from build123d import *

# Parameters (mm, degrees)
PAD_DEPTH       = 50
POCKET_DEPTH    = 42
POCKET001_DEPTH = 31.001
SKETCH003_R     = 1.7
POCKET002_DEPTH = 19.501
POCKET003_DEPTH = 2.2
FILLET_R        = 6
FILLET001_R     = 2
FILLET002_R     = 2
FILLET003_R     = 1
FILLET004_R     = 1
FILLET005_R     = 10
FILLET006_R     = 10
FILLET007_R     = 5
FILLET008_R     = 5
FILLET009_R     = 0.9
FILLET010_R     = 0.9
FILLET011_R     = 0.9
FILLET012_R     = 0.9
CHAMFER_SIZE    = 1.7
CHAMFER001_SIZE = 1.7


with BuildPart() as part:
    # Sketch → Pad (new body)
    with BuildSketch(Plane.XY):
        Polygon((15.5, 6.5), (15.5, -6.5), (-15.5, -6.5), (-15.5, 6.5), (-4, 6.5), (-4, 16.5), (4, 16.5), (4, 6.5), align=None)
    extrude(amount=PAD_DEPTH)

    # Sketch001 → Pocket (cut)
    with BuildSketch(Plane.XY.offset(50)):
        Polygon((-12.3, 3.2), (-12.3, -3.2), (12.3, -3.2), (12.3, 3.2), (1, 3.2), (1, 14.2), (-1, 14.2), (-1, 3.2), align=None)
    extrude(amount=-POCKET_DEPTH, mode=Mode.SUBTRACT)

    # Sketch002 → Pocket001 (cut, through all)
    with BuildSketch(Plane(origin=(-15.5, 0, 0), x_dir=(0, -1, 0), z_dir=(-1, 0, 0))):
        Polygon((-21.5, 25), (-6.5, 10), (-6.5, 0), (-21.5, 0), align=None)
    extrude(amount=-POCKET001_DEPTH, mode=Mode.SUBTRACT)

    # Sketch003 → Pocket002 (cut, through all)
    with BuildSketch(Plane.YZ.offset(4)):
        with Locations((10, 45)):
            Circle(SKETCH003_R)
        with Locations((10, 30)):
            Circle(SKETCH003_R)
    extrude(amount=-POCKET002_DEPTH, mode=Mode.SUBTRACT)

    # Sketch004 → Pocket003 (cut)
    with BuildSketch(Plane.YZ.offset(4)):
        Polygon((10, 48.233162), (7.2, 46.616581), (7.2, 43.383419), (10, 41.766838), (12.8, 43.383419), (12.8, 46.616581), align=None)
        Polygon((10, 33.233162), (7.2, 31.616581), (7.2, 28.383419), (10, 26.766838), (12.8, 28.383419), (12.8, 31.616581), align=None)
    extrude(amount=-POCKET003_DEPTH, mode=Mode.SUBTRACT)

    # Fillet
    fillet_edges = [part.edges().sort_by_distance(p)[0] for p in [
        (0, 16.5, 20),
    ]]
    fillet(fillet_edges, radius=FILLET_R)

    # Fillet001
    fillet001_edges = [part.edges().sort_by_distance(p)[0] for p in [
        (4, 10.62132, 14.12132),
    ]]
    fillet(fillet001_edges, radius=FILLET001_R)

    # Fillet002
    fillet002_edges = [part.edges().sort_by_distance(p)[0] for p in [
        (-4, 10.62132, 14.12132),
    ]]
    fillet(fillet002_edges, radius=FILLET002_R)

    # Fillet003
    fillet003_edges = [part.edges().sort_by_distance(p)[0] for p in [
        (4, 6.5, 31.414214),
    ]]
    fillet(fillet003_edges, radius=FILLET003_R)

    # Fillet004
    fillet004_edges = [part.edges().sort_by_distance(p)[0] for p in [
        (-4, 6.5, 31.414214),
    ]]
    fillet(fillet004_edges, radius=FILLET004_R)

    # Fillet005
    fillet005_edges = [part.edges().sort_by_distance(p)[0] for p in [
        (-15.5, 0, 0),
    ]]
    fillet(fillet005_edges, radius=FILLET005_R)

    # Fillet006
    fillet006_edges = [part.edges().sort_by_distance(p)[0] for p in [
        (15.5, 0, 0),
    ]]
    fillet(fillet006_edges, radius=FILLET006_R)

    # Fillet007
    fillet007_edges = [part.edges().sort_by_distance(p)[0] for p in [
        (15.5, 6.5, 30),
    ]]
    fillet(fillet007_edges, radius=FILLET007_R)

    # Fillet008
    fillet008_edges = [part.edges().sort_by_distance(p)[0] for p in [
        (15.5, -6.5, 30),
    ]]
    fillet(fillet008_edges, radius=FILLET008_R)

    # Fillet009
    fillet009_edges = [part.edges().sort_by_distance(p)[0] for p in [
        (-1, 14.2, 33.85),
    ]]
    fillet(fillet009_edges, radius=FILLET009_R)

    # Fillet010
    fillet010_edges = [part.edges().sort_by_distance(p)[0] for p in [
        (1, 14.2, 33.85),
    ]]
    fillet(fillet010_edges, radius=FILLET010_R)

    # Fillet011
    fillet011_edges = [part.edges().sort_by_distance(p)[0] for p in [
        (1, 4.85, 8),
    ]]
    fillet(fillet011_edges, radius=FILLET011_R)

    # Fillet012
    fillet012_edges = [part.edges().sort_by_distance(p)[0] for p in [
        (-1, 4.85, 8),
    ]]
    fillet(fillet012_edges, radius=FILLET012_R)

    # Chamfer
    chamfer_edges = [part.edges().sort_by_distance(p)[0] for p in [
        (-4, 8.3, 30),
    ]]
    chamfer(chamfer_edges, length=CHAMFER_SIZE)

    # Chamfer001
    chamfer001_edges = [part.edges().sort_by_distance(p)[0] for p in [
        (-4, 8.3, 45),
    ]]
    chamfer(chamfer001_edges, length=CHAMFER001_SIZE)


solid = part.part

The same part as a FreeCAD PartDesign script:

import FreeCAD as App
import Part
import Sketcher

V = App.Vector
Q = App.Units.Quantity


def edges_at(feature, points):
    """Names of the edges that pass closest to the given points."""
    edges = feature.Shape.Edges
    near = lambda p: min(range(len(edges)), key=lambda i: edges[i].distToShape(Part.Vertex(*p))[0])
    return sorted({f"Edge{near(p) + 1}" for p in points})

doc = App.newDocument("Part")
params = doc.addObject("Spreadsheet::Sheet", "Params")
for row, (alias, value) in enumerate([
    ("sketch1_width", "8 mm"),
    ("sketch1_width2", "31 mm"),
    ("sketch1_height", "13 mm"),
    ("sketch1_height2", "10 mm"),
    ("pad1_length", "50 mm"),
    ("sketch2_width", "2 mm"),
    ("sketch2_height", "11 mm"),
    ("sketch2_width2", "24.6 mm"),
    ("sketch2_height2", "6.4 mm"),
    ("pocket1_length", "42 mm"),
    ("sketch3_width", "15 mm"),
    ("sketch3_height", "25 mm"),
    ("sketch3_height2", "10 mm"),
    ("sketch4_diameter", "3.4 mm"),
    ("pocket4_length", "2.2 mm"),
    ("fillet_radius", "6 mm"),
    ("fillet2_radius", "2 mm"),
    ("fillet3_radius", "2 mm"),
    ("fillet4_radius", "1 mm"),
    ("fillet5_radius", "1 mm"),
    ("fillet6_radius", "10 mm"),
    ("fillet7_radius", "10 mm"),
    ("fillet8_radius", "5 mm"),
    ("fillet9_radius", "5 mm"),
    ("fillet10_radius", "0.9 mm"),
    ("fillet11_radius", "0.9 mm"),
    ("fillet12_radius", "0.9 mm"),
    ("fillet13_radius", "0.9 mm"),
    ("chamfer_size", "1.7 mm"),
    ("chamfer2_size", "1.7 mm"),
], start=1):
    params.set(f"A{row}", alias)
    params.set(f"B{row}", "=" + value)
    params.setAlias(f"B{row}", alias)

body = doc.addObject("PartDesign::Body", "Body")

# Sketch on XY plane
sketch1 = body.newObject("Sketcher::SketchObject", "Sketch")
sketch1.AttachmentSupport = (doc.getObject("XY_Plane"), [""])
sketch1.MapMode = "FlatFace"
sketch1.addGeometry([
    Part.LineSegment(V(15.5, -6.5, 0), V(15.5, 6.5, 0)),  # 0
    Part.LineSegment(V(15.5, 6.5, 0), V(4, 6.5, 0)),  # 1
    Part.LineSegment(V(4, 6.5, 0), V(4, 16.5, 0)),  # 2
    Part.LineSegment(V(4, 16.5, 0), V(-4, 16.5, 0)),  # 3
    Part.LineSegment(V(-4, 16.5, 0), V(-4, 6.5, 0)),  # 4
    Part.LineSegment(V(-4, 6.5, 0), V(-15.5, 6.5, 0)),  # 5
    Part.LineSegment(V(-15.5, 6.5, 0), V(-15.5, -6.5, 0)),  # 6
    Part.LineSegment(V(-15.5, -6.5, 0), V(15.5, -6.5, 0)),  # 7
], False)
sketch1.addConstraint([
    Sketcher.Constraint("Coincident", 0, 2, 1, 1),
    Sketcher.Constraint("Coincident", 1, 2, 2, 1),
    Sketcher.Constraint("Coincident", 2, 2, 3, 1),
    Sketcher.Constraint("Coincident", 3, 2, 4, 1),
    Sketcher.Constraint("Coincident", 4, 2, 5, 1),
    Sketcher.Constraint("Coincident", 5, 2, 6, 1),
    Sketcher.Constraint("Coincident", 6, 2, 7, 1),
    Sketcher.Constraint("Coincident", 7, 2, 0, 1),
    Sketcher.Constraint("Vertical", 0),
    Sketcher.Constraint("Horizontal", 1),
    Sketcher.Constraint("Vertical", 2),
    Sketcher.Constraint("Horizontal", 3),
    Sketcher.Constraint("Vertical", 4),
    Sketcher.Constraint("Horizontal", 5),
    Sketcher.Constraint("Vertical", 6),
    Sketcher.Constraint("Horizontal", 7),
    Sketcher.Constraint("Symmetric", 0, 2, 6, 2, -1, 1),
    Sketcher.Constraint("Symmetric", 1, 2, 4, 2, -2),
    Sketcher.Constraint("DistanceX", 3, 2, 3, 1, 8.0),
    Sketcher.Constraint("DistanceX", 7, 1, 7, 2, 31.0),
    Sketcher.Constraint("DistanceY", 0, 1, 0, 2, 13.0),
    Sketcher.Constraint("DistanceY", 2, 1, 2, 2, 10.0),
])
sketch1.setExpression("Constraints[18]", "Params.sketch1_width")
sketch1.setExpression("Constraints[19]", "Params.sketch1_width2")
sketch1.setExpression("Constraints[20]", "Params.sketch1_height")
sketch1.setExpression("Constraints[21]", "Params.sketch1_height2")
pad1 = body.newObject("PartDesign::Pad", "Pad")
pad1.Profile = sketch1
pad1.setExpression("Length", "Params.pad1_length")

# Sketch on XY plane
sketch2 = body.newObject("Sketcher::SketchObject", "Sketch001")
sketch2.AttachmentSupport = (doc.getObject("XY_Plane"), [""])
sketch2.MapMode = "FlatFace"
sketch2.AttachmentOffset = App.Placement(V(0, 0, 50), App.Rotation())
sketch2.addGeometry([
    Part.LineSegment(V(-12.3, 3.2, 0), V(-12.3, -3.2, 0)),  # 0
    Part.LineSegment(V(-12.3, -3.2, 0), V(12.3, -3.2, 0)),  # 1
    Part.LineSegment(V(12.3, -3.2, 0), V(12.3, 3.2, 0)),  # 2
    Part.LineSegment(V(12.3, 3.2, 0), V(1, 3.2, 0)),  # 3
    Part.LineSegment(V(1, 3.2, 0), V(1, 14.2, 0)),  # 4
    Part.LineSegment(V(1, 14.2, 0), V(-1, 14.2, 0)),  # 5
    Part.LineSegment(V(-1, 14.2, 0), V(-1, 3.2, 0)),  # 6
    Part.LineSegment(V(-1, 3.2, 0), V(-12.3, 3.2, 0)),  # 7
], False)
sketch2.addConstraint([
    Sketcher.Constraint("Coincident", 0, 2, 1, 1),
    Sketcher.Constraint("Coincident", 1, 2, 2, 1),
    Sketcher.Constraint("Coincident", 2, 2, 3, 1),
    Sketcher.Constraint("Coincident", 3, 2, 4, 1),
    Sketcher.Constraint("Coincident", 4, 2, 5, 1),
    Sketcher.Constraint("Coincident", 5, 2, 6, 1),
    Sketcher.Constraint("Coincident", 6, 2, 7, 1),
    Sketcher.Constraint("Coincident", 7, 2, 0, 1),
    Sketcher.Constraint("Vertical", 0),
    Sketcher.Constraint("Horizontal", 1),
    Sketcher.Constraint("Vertical", 2),
    Sketcher.Constraint("Horizontal", 3),
    Sketcher.Constraint("Vertical", 4),
    Sketcher.Constraint("Horizontal", 5),
    Sketcher.Constraint("Vertical", 6),
    Sketcher.Constraint("Horizontal", 7),
    Sketcher.Constraint("Symmetric", 0, 2, 2, 2, -1, 1),
    Sketcher.Constraint("Symmetric", 3, 2, 6, 2, -2),
    Sketcher.Constraint("DistanceX", 5, 2, 5, 1, 2.0),
    Sketcher.Constraint("DistanceY", 4, 1, 4, 2, 11.0),
    Sketcher.Constraint("DistanceX", 1, 1, 1, 2, 24.6),
    Sketcher.Constraint("DistanceY", 0, 2, 0, 1, 6.4),
])
sketch2.setExpression("Constraints[18]", "Params.sketch2_width")
sketch2.setExpression("Constraints[19]", "Params.sketch2_height")
sketch2.setExpression("Constraints[20]", "Params.sketch2_width2")
sketch2.setExpression("Constraints[21]", "Params.sketch2_height2")
pocket1 = body.newObject("PartDesign::Pocket", "Pocket")
pocket1.Profile = sketch2
pocket1.setExpression("Length", "Params.pocket1_length")

# Sketch on YZ plane
sketch3 = body.newObject("Sketcher::SketchObject", "Sketch002")
sketch3.AttachmentSupport = (doc.getObject("YZ_Plane"), [""])
sketch3.MapMode = "FlatFace"
sketch3.AttachmentOffset = App.Placement(V(0, 0, -15.5), App.Rotation())
sketch3.addGeometry([
    Part.LineSegment(V(6.5, 10, 0), V(21.5, 25, 0)),
    Part.LineSegment(V(21.5, 25, 0), V(21.5, 0, 0)),
    Part.LineSegment(V(21.5, 0, 0), V(6.5, 0, 0)),
    Part.LineSegment(V(6.5, 0, 0), V(6.5, 10, 0)),
], False)
sketch3.addConstraint([
    Sketcher.Constraint("Coincident", 0, 2, 1, 1),
    Sketcher.Constraint("Coincident", 1, 2, 2, 1),
    Sketcher.Constraint("Coincident", 2, 2, 3, 1),
    Sketcher.Constraint("Coincident", 3, 2, 0, 1),
    Sketcher.Constraint("Vertical", 1),
    Sketcher.Constraint("Horizontal", 2),
    Sketcher.Constraint("Vertical", 3),
    Sketcher.Constraint("PointOnObject", 1, 2, -1),
    Sketcher.Constraint("DistanceX", 2, 2, 2, 1, 15.0),
    Sketcher.Constraint("DistanceY", 1, 2, 1, 1, 25.0),
    Sketcher.Constraint("DistanceY", 3, 1, 3, 2, 10.0),
    Sketcher.Constraint("DistanceX", -1, 1, 0, 2, 21.5),
])
sketch3.setExpression("Constraints[8]", "Params.sketch3_width")
sketch3.setExpression("Constraints[9]", "Params.sketch3_height")
sketch3.setExpression("Constraints[10]", "Params.sketch3_height2")
pocket2 = body.newObject("PartDesign::Pocket", "Pocket001")
pocket2.Profile = sketch3
pocket2.Type = "ThroughAll"
pocket2.Reversed = True

# Sketch on YZ plane
sketch4 = body.newObject("Sketcher::SketchObject", "Sketch003")
sketch4.AttachmentSupport = (doc.getObject("YZ_Plane"), [""])
sketch4.MapMode = "FlatFace"
sketch4.AttachmentOffset = App.Placement(V(0, 0, 4), App.Rotation())
sketch4.addGeometry([
    Part.Circle(V(10, 45, 0), V(0, 0, 1), 1.7),
    Part.Circle(V(10, 30, 0), V(0, 0, 1), 1.7),
], False)
sketch4.addConstraint([
    Sketcher.Constraint("Equal", 0, 1),
    Sketcher.Constraint("Vertical", 0, 3, 1, 3),
    Sketcher.Constraint("Diameter", 0, 3.4),
    Sketcher.Constraint("DistanceX", -1, 1, 0, 3, 10.0),
    Sketcher.Constraint("DistanceY", -1, 1, 0, 3, 45.0),
    Sketcher.Constraint("DistanceY", -1, 1, 1, 3, 30.0),
])
sketch4.setExpression("Constraints[2]", "Params.sketch4_diameter")
pocket3 = body.newObject("PartDesign::Pocket", "Pocket002")
pocket3.Profile = sketch4
pocket3.Type = "ThroughAll"

# Sketch on YZ plane
sketch5 = body.newObject("Sketcher::SketchObject", "Sketch004")
sketch5.AttachmentSupport = (doc.getObject("YZ_Plane"), [""])
sketch5.MapMode = "FlatFace"
sketch5.AttachmentOffset = App.Placement(V(0, 0, 4), App.Rotation())
sketch5.addGeometry([
    Part.LineSegment(V(10, 48.233162, 0), V(7.2, 46.616581, 0)),  # 0
    Part.LineSegment(V(7.2, 46.616581, 0), V(7.2, 43.383419, 0)),  # 1
    Part.LineSegment(V(7.2, 43.383419, 0), V(10, 41.766838, 0)),  # 2
    Part.LineSegment(V(10, 41.766838, 0), V(12.8, 43.383419, 0)),  # 3
    Part.LineSegment(V(12.8, 43.383419, 0), V(12.8, 46.616581, 0)),  # 4
    Part.LineSegment(V(12.8, 46.616581, 0), V(10, 48.233162, 0)),  # 5
    Part.LineSegment(V(10, 33.233162, 0), V(7.2, 31.616581, 0)),  # 6
    Part.LineSegment(V(7.2, 31.616581, 0), V(7.2, 28.383419, 0)),  # 7
    Part.LineSegment(V(7.2, 28.383419, 0), V(10, 26.766838, 0)),  # 8
    Part.LineSegment(V(10, 26.766838, 0), V(12.8, 28.383419, 0)),  # 9
    Part.LineSegment(V(12.8, 28.383419, 0), V(12.8, 31.616581, 0)),  # 10
    Part.LineSegment(V(12.8, 31.616581, 0), V(10, 33.233162, 0)),  # 11
], False)
sketch5.addConstraint([
    Sketcher.Constraint("Coincident", 0, 2, 1, 1),
    Sketcher.Constraint("Coincident", 1, 2, 2, 1),
    Sketcher.Constraint("Coincident", 2, 2, 3, 1),
    Sketcher.Constraint("Coincident", 3, 2, 4, 1),
    Sketcher.Constraint("Coincident", 4, 2, 5, 1),
    Sketcher.Constraint("Coincident", 5, 2, 0, 1),
    Sketcher.Constraint("Coincident", 6, 2, 7, 1),
    Sketcher.Constraint("Coincident", 7, 2, 8, 1),
    Sketcher.Constraint("Coincident", 8, 2, 9, 1),
    Sketcher.Constraint("Coincident", 9, 2, 10, 1),
    Sketcher.Constraint("Coincident", 10, 2, 11, 1),
    Sketcher.Constraint("Coincident", 11, 2, 6, 1),
    Sketcher.Constraint("Vertical", 1),
    Sketcher.Constraint("Vertical", 4),
    Sketcher.Constraint("Vertical", 7),
    Sketcher.Constraint("Vertical", 10),
    Sketcher.Constraint("Parallel", 0, 3),
    Sketcher.Constraint("Parallel", 2, 5),
    Sketcher.Constraint("Parallel", 3, 6),
    Sketcher.Constraint("Parallel", 5, 8),
    Sketcher.Constraint("Parallel", 6, 9),
    Sketcher.Constraint("Parallel", 8, 11),
    Sketcher.Constraint("Horizontal", 1, 2, 3, 2),
    Sketcher.Constraint("Horizontal", 0, 2, 4, 2),
    Sketcher.Constraint("Horizontal", 7, 2, 9, 2),
    Sketcher.Constraint("Horizontal", 6, 2, 10, 2),
    Sketcher.Constraint("Vertical", 2, 2, 5, 2),
    Sketcher.Constraint("Vertical", 1, 2, 6, 2),
    Sketcher.Constraint("Vertical", 5, 2, 8, 2),
    Sketcher.Constraint("Equal", 4, 7),
    Sketcher.Constraint("Angle", 0, Q("-149.999996 deg")),
    Sketcher.Constraint("DistanceX", -1, 1, 2, 2, 10.0),
    Sketcher.Constraint("DistanceY", 6, 2, 0, 2, 15.0),
    Sketcher.Constraint("DistanceX", -1, 1, 0, 2, 7.2),
    Sketcher.Constraint("DistanceY", 1, 2, 1, 1, 3.233162),
    Sketcher.Constraint("DistanceY", -1, 1, 0, 2, 46.616581),
])
pocket4 = body.newObject("PartDesign::Pocket", "Pocket003")
pocket4.Profile = sketch5
pocket4.setExpression("Length", "Params.pocket4_length")
doc.recompute()

fillet = body.newObject("PartDesign::Fillet", "Fillet")
fillet.Base = (pocket4, edges_at(pocket4, [(0, 16.5, 20)]))
fillet.setExpression("Radius", "Params.fillet_radius")
doc.recompute()

fillet2 = body.newObject("PartDesign::Fillet", "Fillet001")
fillet2.Base = (fillet, edges_at(fillet, [(4, 10.621, 14.121)]))
fillet2.setExpression("Radius", "Params.fillet2_radius")
doc.recompute()

fillet3 = body.newObject("PartDesign::Fillet", "Fillet002")
fillet3.Base = (fillet2, edges_at(fillet2, [(-4, 10.621, 14.121)]))
fillet3.setExpression("Radius", "Params.fillet3_radius")
doc.recompute()

fillet4 = body.newObject("PartDesign::Fillet", "Fillet003")
fillet4.Base = (fillet3, edges_at(fillet3, [(4, 6.5, 31.414)]))
fillet4.setExpression("Radius", "Params.fillet4_radius")
doc.recompute()

fillet5 = body.newObject("PartDesign::Fillet", "Fillet004")
fillet5.Base = (fillet4, edges_at(fillet4, [(-4, 6.5, 31.414)]))
fillet5.setExpression("Radius", "Params.fillet5_radius")
doc.recompute()

fillet6 = body.newObject("PartDesign::Fillet", "Fillet005")
fillet6.Base = (fillet5, edges_at(fillet5, [(-15.5, 0, 0)]))
fillet6.setExpression("Radius", "Params.fillet6_radius")
doc.recompute()

fillet7 = body.newObject("PartDesign::Fillet", "Fillet006")
fillet7.Base = (fillet6, edges_at(fillet6, [(15.5, 0, 0)]))
fillet7.setExpression("Radius", "Params.fillet7_radius")
doc.recompute()

fillet8 = body.newObject("PartDesign::Fillet", "Fillet007")
fillet8.Base = (fillet7, edges_at(fillet7, [(15.5, 6.5, 30)]))
fillet8.setExpression("Radius", "Params.fillet8_radius")
doc.recompute()

fillet9 = body.newObject("PartDesign::Fillet", "Fillet008")
fillet9.Base = (fillet8, edges_at(fillet8, [(15.5, -6.5, 30)]))
fillet9.setExpression("Radius", "Params.fillet9_radius")
doc.recompute()

fillet10 = body.newObject("PartDesign::Fillet", "Fillet009")
fillet10.Base = (fillet9, edges_at(fillet9, [(-1, 14.2, 33.85)]))
fillet10.setExpression("Radius", "Params.fillet10_radius")
doc.recompute()

fillet11 = body.newObject("PartDesign::Fillet", "Fillet010")
fillet11.Base = (fillet10, edges_at(fillet10, [(1, 14.2, 33.85)]))
fillet11.setExpression("Radius", "Params.fillet11_radius")
doc.recompute()

fillet12 = body.newObject("PartDesign::Fillet", "Fillet011")
fillet12.Base = (fillet11, edges_at(fillet11, [(1, 4.85, 8)]))
fillet12.setExpression("Radius", "Params.fillet12_radius")
doc.recompute()

fillet13 = body.newObject("PartDesign::Fillet", "Fillet012")
fillet13.Base = (fillet12, edges_at(fillet12, [(-1, 4.85, 8)]))
fillet13.setExpression("Radius", "Params.fillet13_radius")
doc.recompute()

chamfer = body.newObject("PartDesign::Chamfer", "Chamfer")
chamfer.Base = (fillet13, edges_at(fillet13, [(-4, 8.3, 30)]))
chamfer.setExpression("Size", "Params.chamfer_size")
doc.recompute()

chamfer2 = body.newObject("PartDesign::Chamfer", "Chamfer001")
chamfer2.Base = (chamfer, edges_at(chamfer, [(-4, 8.3, 45)]))
chamfer2.setExpression("Size", "Params.chamfer2_size")

doc.recompute()
